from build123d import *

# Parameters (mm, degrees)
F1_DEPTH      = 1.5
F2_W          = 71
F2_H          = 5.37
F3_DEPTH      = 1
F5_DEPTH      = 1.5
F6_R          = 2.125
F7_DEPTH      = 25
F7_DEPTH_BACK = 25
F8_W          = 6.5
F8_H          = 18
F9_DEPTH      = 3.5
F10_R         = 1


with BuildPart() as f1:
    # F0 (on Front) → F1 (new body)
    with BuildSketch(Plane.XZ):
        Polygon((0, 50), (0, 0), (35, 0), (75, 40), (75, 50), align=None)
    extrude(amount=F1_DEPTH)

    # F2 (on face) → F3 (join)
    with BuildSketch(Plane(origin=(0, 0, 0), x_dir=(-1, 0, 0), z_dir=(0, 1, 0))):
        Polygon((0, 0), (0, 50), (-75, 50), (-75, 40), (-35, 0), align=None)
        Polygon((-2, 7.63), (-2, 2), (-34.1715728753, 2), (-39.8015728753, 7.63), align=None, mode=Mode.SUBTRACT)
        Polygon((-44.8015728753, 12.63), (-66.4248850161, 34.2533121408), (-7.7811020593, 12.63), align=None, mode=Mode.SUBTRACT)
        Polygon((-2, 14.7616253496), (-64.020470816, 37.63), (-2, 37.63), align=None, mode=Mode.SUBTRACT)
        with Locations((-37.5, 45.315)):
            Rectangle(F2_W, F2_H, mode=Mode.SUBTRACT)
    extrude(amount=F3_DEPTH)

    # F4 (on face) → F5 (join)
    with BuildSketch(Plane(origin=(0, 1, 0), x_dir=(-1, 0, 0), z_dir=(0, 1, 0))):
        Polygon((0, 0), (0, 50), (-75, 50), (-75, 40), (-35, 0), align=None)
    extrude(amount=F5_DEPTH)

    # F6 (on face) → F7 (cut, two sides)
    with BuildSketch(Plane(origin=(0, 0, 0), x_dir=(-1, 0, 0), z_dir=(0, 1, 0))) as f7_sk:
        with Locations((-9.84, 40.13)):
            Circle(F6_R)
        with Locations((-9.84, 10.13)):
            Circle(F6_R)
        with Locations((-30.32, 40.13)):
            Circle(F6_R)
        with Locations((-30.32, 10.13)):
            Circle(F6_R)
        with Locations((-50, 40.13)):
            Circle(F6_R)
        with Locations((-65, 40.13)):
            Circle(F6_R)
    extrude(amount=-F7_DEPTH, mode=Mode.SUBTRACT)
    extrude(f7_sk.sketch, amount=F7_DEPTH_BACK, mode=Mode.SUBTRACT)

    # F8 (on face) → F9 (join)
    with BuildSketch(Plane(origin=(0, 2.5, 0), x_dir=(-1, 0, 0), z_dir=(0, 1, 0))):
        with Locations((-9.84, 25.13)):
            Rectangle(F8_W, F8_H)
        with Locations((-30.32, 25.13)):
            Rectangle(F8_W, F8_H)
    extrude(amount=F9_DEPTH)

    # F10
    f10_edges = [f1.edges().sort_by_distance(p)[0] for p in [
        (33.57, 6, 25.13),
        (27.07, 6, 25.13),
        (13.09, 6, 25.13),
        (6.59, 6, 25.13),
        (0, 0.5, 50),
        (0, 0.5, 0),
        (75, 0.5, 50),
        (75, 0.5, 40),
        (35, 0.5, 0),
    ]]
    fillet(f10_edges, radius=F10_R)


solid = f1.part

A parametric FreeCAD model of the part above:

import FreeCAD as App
import Part
import Sketcher

V = App.Vector


def edges_at(feature, points):
    """Names of the edges that pass closest to the given points."""
    edges = feature.Shape.Edges
    near = lambda p: min(range(len(edges)), key=lambda i: edges[i].distToShape(Part.Vertex(*p))[0])
    return sorted({f"Edge{near(p) + 1}" for p in points})

doc = App.newDocument("Part")
body = doc.addObject("PartDesign::Body", "Body")

# Sketch on XZ plane
sketch1 = body.newObject("Sketcher::SketchObject", "Sketch")
sketch1.AttachmentSupport = (doc.getObject("XZ_Plane"), [""])
sketch1.MapMode = "FlatFace"
sketch1.addGeometry(Part.LineSegment(V(0, 50, 0), V(0, 0, 0)), False)
sketch1.addGeometry(Part.LineSegment(V(0, 0, 0), V(35, 0, 0)), False)
sketch1.addGeometry(Part.LineSegment(V(35, 0, 0), V(75, 40, 0)), False)
sketch1.addGeometry(Part.LineSegment(V(75, 40, 0), V(75, 50, 0)), False)
sketch1.addGeometry(Part.LineSegment(V(75, 50, 0), V(0, 50, 0)), False)
sketch1.addConstraint(Sketcher.Constraint("Coincident", 0, 2, 1, 1))
sketch1.addConstraint(Sketcher.Constraint("Coincident", 1, 2, 2, 1))
sketch1.addConstraint(Sketcher.Constraint("Coincident", 2, 2, 3, 1))
sketch1.addConstraint(Sketcher.Constraint("Coincident", 3, 2, 4, 1))
sketch1.addConstraint(Sketcher.Constraint("Coincident", 4, 2, 0, 1))
sketch1.addConstraint(Sketcher.Constraint("Vertical", 0))
sketch1.addConstraint(Sketcher.Constraint("Horizontal", 1))
sketch1.addConstraint(Sketcher.Constraint("Vertical", 3))
sketch1.addConstraint(Sketcher.Constraint("Horizontal", 4))
sketch1.addConstraint(Sketcher.Constraint("Coincident", 0, 2, -1, 1))
sketch1.addConstraint(Sketcher.Constraint("DistanceX", 1, 1, 1, 2, 35.0))
sketch1.addConstraint(Sketcher.Constraint("DistanceX", 4, 2, 4, 1, 75.0))
sketch1.addConstraint(Sketcher.Constraint("DistanceY", 0, 2, 0, 1, 50.0))
sketch1.addConstraint(Sketcher.Constraint("DistanceY", 3, 1, 3, 2, 10.0))
pad1 = body.newObject("PartDesign::Pad", "Pad")
pad1.Profile = sketch1
pad1.Length = 1.5

# Sketch on XZ plane
sketch2 = body.newObject("Sketcher::SketchObject", "Sketch001")
sketch2.AttachmentSupport = (doc.getObject("XZ_Plane"), [""])
sketch2.MapMode = "FlatFace"
sketch2.addGeometry(Part.LineSegment(V(0, 0, 0), V(0, 50, 0)), False)
sketch2.addGeometry(Part.LineSegment(V(0, 50, 0), V(75, 50, 0)), False)
sketch2.addGeometry(Part.LineSegment(V(75, 50, 0), V(75, 40, 0)), False)
sketch2.addGeometry(Part.LineSegment(V(75, 40, 0), V(35, 0, 0)), False)
sketch2.addGeometry(Part.LineSegment(V(35, 0, 0), V(0, 0, 0)), False)
sketch2.addGeometry(Part.LineSegment(V(40, 8, 0), V(2, 8, 0)), False)
sketch2.addGeometry(Part.LineSegment(V(2, 8, 0), V(2, 2, 0)), False)
sketch2.addGeometry(Part.LineSegment(V(2, 2, 0), V(34, 2, 0)), False)
sketch2.addGeometry(Part.LineSegment(V(34, 2, 0), V(40, 8, 0)), False)
sketch2.addGeometry(Part.LineSegment(V(8, 13, 0), V(45, 13, 0)), False)
sketch2.addGeometry(Part.LineSegment(V(45, 13, 0), V(66, 34, 0)), False)
sketch2.addGeometry(Part.LineSegment(V(66, 34, 0), V(8, 13, 0)), False)
sketch2.addGeometry(Part.LineSegment(V(2, 38, 0), V(2, 15, 0)), False)
sketch2.addGeometry(Part.LineSegment(V(2, 15, 0), V(64, 38, 0)), False)
sketch2.addGeometry(Part.LineSegment(V(64, 38, 0), V(2, 38, 0)), False)
sketch2.addGeometry(Part.LineSegment(V(2, 43, 0), V(73, 43, 0)), False)
sketch2.addGeometry(Part.LineSegment(V(73, 43, 0), V(73, 48, 0)), False)
sketch2.addGeometry(Part.LineSegment(V(73, 48, 0), V(2, 48, 0)), False)
sketch2.addGeometry(Part.LineSegment(V(2, 48, 0), V(2, 43, 0)), False)
sketch2.addConstraint(Sketcher.Constraint("Coincident", 0, 2, 1, 1))
sketch2.addConstraint(Sketcher.Constraint("Coincident", 1, 2, 2, 1))
sketch2.addConstraint(Sketcher.Constraint("Coincident", 2, 2, 3, 1))
sketch2.addConstraint(Sketcher.Constraint("Coincident", 3, 2, 4, 1))
sketch2.addConstraint(Sketcher.Constraint("Coincident", 4, 2, 0, 1))
sketch2.addConstraint(Sketcher.Constraint("Coincident", 5, 2, 6, 1))
sketch2.addConstraint(Sketcher.Constraint("Coincident", 6, 2, 7, 1))
sketch2.addConstraint(Sketcher.Constraint("Coincident", 7, 2, 8, 1))
sketch2.addConstraint(Sketcher.Constraint("Coincident", 8, 2, 5, 1))
sketch2.addConstraint(Sketcher.Constraint("Coincident", 9, 2, 10, 1))
sketch2.addConstraint(Sketcher.Constraint("Coincident", 10, 2, 11, 1))
sketch2.addConstraint(Sketcher.Constraint("Coincident", 11, 2, 9, 1))
sketch2.addConstraint(Sketcher.Constraint("Coincident", 12, 2, 13, 1))
sketch2.addConstraint(Sketcher.Constraint("Coincident", 13, 2, 14, 1))
sketch2.addConstraint(Sketcher.Constraint("Coincident", 14, 2, 12, 1))
sketch2.addConstraint(Sketcher.Constraint("Coincident", 15, 2, 16, 1))
sketch2.addConstraint(Sketcher.Constraint("Coincident", 16, 2, 17, 1))
sketch2.addConstraint(Sketcher.Constraint("Coincident", 17, 2, 18, 1))
sketch2.addConstraint(Sketcher.Constraint("Coincident", 18, 2, 15, 1))
sketch2.addConstraint(Sketcher.Constraint("Vertical", 0))
sketch2.addConstraint(Sketcher.Constraint("Horizontal", 1))
sketch2.addConstraint(Sketcher.Constraint("Vertical", 2))
sketch2.addConstraint(Sketcher.Constraint("Horizontal", 4))
sketch2.addConstraint(Sketcher.Constraint("Horizontal", 5))
sketch2.addConstraint(Sketcher.Constraint("Vertical", 6))
sketch2.addConstraint(Sketcher.Constraint("Horizontal", 7))
sketch2.addConstraint(Sketcher.Constraint("Horizontal", 9))
sketch2.addConstraint(Sketcher.Constraint("Vertical", 12))
sketch2.addConstraint(Sketcher.Constraint("Horizontal", 14))
sketch2.addConstraint(Sketcher.Constraint("Horizontal", 15))
sketch2.addConstraint(Sketcher.Constraint("Vertical", 16))
sketch2.addConstraint(Sketcher.Constraint("Horizontal", 17))
sketch2.addConstraint(Sketcher.Constraint("Vertical", 18))
sketch2.addConstraint(Sketcher.Constraint("Coincident", 4, 2, -1, 1))
sketch2.addConstraint(Sketcher.Constraint("Parallel", 3, 8))
sketch2.addConstraint(Sketcher.Constraint("Parallel", 8, 10))
sketch2.addConstraint(Sketcher.Constraint("Parallel", 11, 13))
sketch2.addConstraint(Sketcher.Constraint("Vertical", 6, 2, 12, 2))
sketch2.addConstraint(Sketcher.Constraint("Vertical", 14, 2, 17, 2))
sketch2.addConstraint(Sketcher.Constraint("DistanceX", 1, 1, 1, 2, 75.0))
sketch2.addConstraint(Sketcher.Constraint("DistanceX", 4, 2, 4, 1, 35.0))
sketch2.addConstraint(Sketcher.Constraint("DistanceX", 15, 1, 15, 2, 71.0))
sketch2.addConstraint(Sketcher.Constraint("DistanceY", 0, 1, 0, 2, 50.0))
sketch2.addConstraint(Sketcher.Constraint("DistanceY", 2, 2, 2, 1, 10.0))
sketch2.addConstraint(Sketcher.Constraint("DistanceX", -1, 1, 5, 2, 2.0))
sketch2.addConstraint(Sketcher.Constraint("DistanceY", -1, 1, 6, 2, 2.0))
sketch2.addConstraint(Sketcher.Constraint("DistanceY", -1, 1, 16, 2, 48.0))
sketch2.addConstraint(Sketcher.Constraint("DistanceX", 8, 2, 9, 2, 5.0))
sketch2.addConstraint(Sketcher.Constraint("DistanceY", 8, 2, 9, 2, 5.0))
sketch2.addConstraint(Sketcher.Constraint("DistanceY", 9, 2, 13, 2, 25.0))
sketch2.addConstraint(Sketcher.Constraint("DistanceY", 13, 2, 15, 2, 5.0))
sketch2.addConstraint(Sketcher.Constraint("DistanceY", 6, 2, 6, 1, 5.63))
sketch2.addConstraint(Sketcher.Constraint("DistanceX", 9, 1, 9, 2, 37.020471))
sketch2.addConstraint(Sketcher.Constraint("DistanceX", 14, 2, 14, 1, 62.020471))
sketch2.addConstraint(Sketcher.Constraint("Distance", 10, 30.579981))
sketch2.addConstraint(Sketcher.Constraint("DistanceX", 5, 2, 5, 1, 37.801573))
pad2 = body.newObject("PartDesign::Pad", "Pad001")
pad2.Profile = sketch2
pad2.Length = 1
pad2.Reversed = True

# Sketch on XZ plane
sketch3 = body.newObject("Sketcher::SketchObject", "Sketch002")
sketch3.AttachmentSupport = (doc.getObject("XZ_Plane"), [""])
sketch3.MapMode = "FlatFace"
sketch3.AttachmentOffset = App.Placement(V(0, 0, -1), App.Rotation())
sketch3.addGeometry(Part.LineSegment(V(0, 0, 0), V(0, 50, 0)), False)
sketch3.addGeometry(Part.LineSegment(V(0, 50, 0), V(75, 50, 0)), False)
sketch3.addGeometry(Part.LineSegment(V(75, 50, 0), V(75, 40, 0)), False)
sketch3.addGeometry(Part.LineSegment(V(75, 40, 0), V(35, 0, 0)), False)
sketch3.addGeometry(Part.LineSegment(V(35, 0, 0), V(0, 0, 0)), False)
sketch3.addConstraint(Sketcher.Constraint("Coincident", 0, 2, 1, 1))
sketch3.addConstraint(Sketcher.Constraint("Coincident", 1, 2, 2, 1))
sketch3.addConstraint(Sketcher.Constraint("Coincident", 2, 2, 3, 1))
sketch3.addConstraint(Sketcher.Constraint("Coincident", 3, 2, 4, 1))
sketch3.addConstraint(Sketcher.Constraint("Coincident", 4, 2, 0, 1))
sketch3.addConstraint(Sketcher.Constraint("Vertical", 0))
sketch3.addConstraint(Sketcher.Constraint("Horizontal", 1))
sketch3.addConstraint(Sketcher.Constraint("Vertical", 2))
sketch3.addConstraint(Sketcher.Constraint("Horizontal", 4))
sketch3.addConstraint(Sketcher.Constraint("Coincident", 4, 2, -1, 1))
sketch3.addConstraint(Sketcher.Constraint("DistanceX", 1, 1, 1, 2, 75.0))
sketch3.addConstraint(Sketcher.Constraint("DistanceX", 4, 2, 4, 1, 35.0))
sketch3.addConstraint(Sketcher.Constraint("DistanceY", 0, 1, 0, 2, 50.0))
sketch3.addConstraint(Sketcher.Constraint("DistanceY", 2, 2, 2, 1, 10.0))
pad3 = body.newObject("PartDesign::Pad", "Pad002")
pad3.Profile = sketch3
pad3.Length = 1.5
pad3.Reversed = True

# Sketch on XZ plane
sketch4 = body.newObject("Sketcher::SketchObject", "Sketch003")
sketch4.AttachmentSupport = (doc.getObject("XZ_Plane"), [""])
sketch4.MapMode = "FlatFace"
sketch4.addGeometry(Part.Circle(V(9.8, 40.1, 0), V(0, 0, 1), 2.1), False)
sketch4.addGeometry(Part.Circle(V(9.8, 10.1, 0), V(0, 0, 1), 2.1), False)
sketch4.addGeometry(Part.Circle(V(30.3, 40.1, 0), V(0, 0, 1), 2.1), False)
sketch4.addGeometry(Part.Circle(V(30.3, 10.1, 0), V(0, 0, 1), 2.1), False)
sketch4.addGeometry(Part.Circle(V(50, 40.1, 0), V(0, 0, 1), 2.1), False)
sketch4.addGeometry(Part.Circle(V(65, 40.1, 0), V(0, 0, 1), 2.1), False)
sketch4.addConstraint(Sketcher.Constraint("Equal", 0, 1))
sketch4.addConstraint(Sketcher.Constraint("Equal", 1, 2))
sketch4.addConstraint(Sketcher.Constraint("Equal", 2, 3))
sketch4.addConstraint(Sketcher.Constraint("Equal", 3, 4))
sketch4.addConstraint(Sketcher.Constraint("Equal", 4, 5))
sketch4.addConstraint(Sketcher.Constraint("Horizontal", 0, 3, 2, 3))
sketch4.addConstraint(Sketcher.Constraint("Horizontal", 1, 3, 3, 3))
sketch4.addConstraint(Sketcher.Constraint("Horizontal", 2, 3, 4, 3))
sketch4.addConstraint(Sketcher.Constraint("Horizontal", 4, 3, 5, 3))
sketch4.addConstraint(Sketcher.Constraint("Vertical", 0, 3, 1, 3))
sketch4.addConstraint(Sketcher.Constraint("Vertical", 2, 3, 3, 3))
sketch4.addConstraint(Sketcher.Constraint("Diameter", 0, 4.25))
sketch4.addConstraint(Sketcher.Constraint("DistanceX", -1, 1, 4, 3, 50.0))
sketch4.addConstraint(Sketcher.Constraint("DistanceX", -1, 1, 5, 3, 65.0))
sketch4.addConstraint(Sketcher.Constraint("DistanceY", 1, 3, 0, 3, 30.0))
sketch4.addConstraint(Sketcher.Constraint("DistanceX", -1, 1, 0, 3, 9.84))
sketch4.addConstraint(Sketcher.Constraint("DistanceY", -1, 1, 0, 3, 40.13))
sketch4.addConstraint(Sketcher.Constraint("DistanceX", -1, 1, 2, 3, 30.32))
pocket1 = body.newObject("PartDesign::Pocket", "Pocket")
pocket1.Profile = sketch4
pocket1.Type = "ThroughAll"
pocket1.Midplane = True

# Sketch on XZ plane
sketch5 = body.newObject("Sketcher::SketchObject", "Sketch004")
sketch5.AttachmentSupport = (doc.getObject("XZ_Plane"), [""])
sketch5.MapMode = "FlatFace"
sketch5.AttachmentOffset = App.Placement(V(0, 0, -2.5), App.Rotation())
sketch5.addGeometry(Part.LineSegment(V(13, 34, 0), V(13, 16, 0)), False)
sketch5.addGeometry(Part.LineSegment(V(13, 16, 0), V(7, 16, 0)), False)
sketch5.addGeometry(Part.LineSegment(V(7, 16, 0), V(7, 34, 0)), False)
sketch5.addGeometry(Part.LineSegment(V(7, 34, 0), V(13, 34, 0)), False)
sketch5.addGeometry(Part.LineSegment(V(34, 34, 0), V(34, 16, 0)), False)
sketch5.addGeometry(Part.LineSegment(V(34, 16, 0), V(27, 16, 0)), False)
sketch5.addGeometry(Part.LineSegment(V(27, 16, 0), V(27, 34, 0)), False)
sketch5.addGeometry(Part.LineSegment(V(27, 34, 0), V(34, 34, 0)), False)
sketch5.addConstraint(Sketcher.Constraint("Coincident", 0, 2, 1, 1))
sketch5.addConstraint(Sketcher.Constraint("Coincident", 1, 2, 2, 1))
sketch5.addConstraint(Sketcher.Constraint("Coincident", 2, 2, 3, 1))
sketch5.addConstraint(Sketcher.Constraint("Coincident", 3, 2, 0, 1))
sketch5.addConstraint(Sketcher.Constraint("Coincident", 4, 2, 5, 1))
sketch5.addConstraint(Sketcher.Constraint("Coincident", 5, 2, 6, 1))
sketch5.addConstraint(Sketcher.Constraint("Coincident", 6, 2, 7, 1))
sketch5.addConstraint(Sketcher.Constraint("Coincident", 7, 2, 4, 1))
sketch5.addConstraint(Sketcher.Constraint("Vertical", 0))
sketch5.addConstraint(Sketcher.Constraint("Horizontal", 1))
sketch5.addConstraint(Sketcher.Constraint("Vertical", 2))
sketch5.addConstraint(Sketcher.Constraint("Horizontal", 3))
sketch5.addConstraint(Sketcher.Constraint("Vertical", 4))
sketch5.addConstraint(Sketcher.Constraint("Horizontal", 5))
sketch5.addConstraint(Sketcher.Constraint("Vertical", 6))
sketch5.addConstraint(Sketcher.Constraint("Horizontal", 7))
sketch5.addConstraint(Sketcher.Constraint("Horizontal", 1, 2, 4, 2))
sketch5.addConstraint(Sketcher.Constraint("Horizontal", 3, 2, 6, 2))
sketch5.addConstraint(Sketcher.Constraint("Equal", 3, 5))
sketch5.addConstraint(Sketcher.Constraint("DistanceY", 0, 2, 0, 1, 18.0))
sketch5.addConstraint(Sketcher.Constraint("DistanceX", 1, 2, 1, 1, 6.5))
sketch5.addConstraint(Sketcher.Constraint("DistanceX", -1, 1, 0, 2, 13.09))
sketch5.addConstraint(Sketcher.Constraint("DistanceY", -1, 1, 0, 2, 16.13))
sketch5.addConstraint(Sketcher.Constraint("DistanceX", -1, 1, 4, 2, 33.57))
pad4 = body.newObject("PartDesign::Pad", "Pad003")
pad4.Profile = sketch5
pad4.Length = 3.5
pad4.Reversed = True
doc.recompute()

fillet = body.newObject("PartDesign::Fillet", "Fillet")
fillet.Base = (pad4, edges_at(pad4, [
    (33.57, 6, 25.13),
    (27.07, 6, 25.13),
    (13.09, 6, 25.13),
    (6.59, 6, 25.13),
    (0, 0.5, 50),
    (0, 0.5, 0),
    (75, 0.5, 50),
    (75, 0.5, 40),
    (35, 0.5, 0),
]))
fillet.Radius = 1

doc.recompute()
